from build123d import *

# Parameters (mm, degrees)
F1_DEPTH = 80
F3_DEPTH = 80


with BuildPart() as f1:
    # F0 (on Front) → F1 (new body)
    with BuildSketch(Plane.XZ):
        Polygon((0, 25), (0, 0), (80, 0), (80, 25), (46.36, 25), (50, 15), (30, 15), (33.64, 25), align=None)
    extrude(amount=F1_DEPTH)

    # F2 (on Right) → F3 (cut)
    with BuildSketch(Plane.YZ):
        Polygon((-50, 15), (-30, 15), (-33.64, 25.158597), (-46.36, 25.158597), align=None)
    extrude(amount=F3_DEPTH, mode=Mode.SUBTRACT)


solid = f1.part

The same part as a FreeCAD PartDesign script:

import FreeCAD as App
import Part
import Sketcher
from FreeCAD import Vector
Q = App.Units.Quantity

doc = App.newDocument("Part")
body = doc.addObject("PartDesign::Body", "Body")

sketch1 = body.newObject("Sketcher::SketchObject", "Sketch")
sketch1.AttachmentSupport = (doc.getObject("XZ_Plane"), [""])
sketch1.MapMode = "FlatFace"
sketch1.addGeometry(Part.LineSegment(Vector(0, 25, 0), Vector(0, 0, 0)), False)
sketch1.addGeometry(Part.LineSegment(Vector(0, 0, 0), Vector(80, 0, 0)), False)
sketch1.addGeometry(Part.LineSegment(Vector(80, 0, 0), Vector(80, 25, 0)), False)
sketch1.addGeometry(Part.LineSegment(Vector(80, 25, 0), Vector(46, 25, 0)), False)
sketch1.addGeometry(Part.LineSegment(Vector(46, 25, 0), Vector(50, 15, 0)), False)
sketch1.addGeometry(Part.LineSegment(Vector(50, 15, 0), Vector(30, 15, 0)), False)
sketch1.addGeometry(Part.LineSegment(Vector(30, 15, 0), Vector(34, 25, 0)), False)
sketch1.addGeometry(Part.LineSegment(Vector(34, 25, 0), Vector(0, 25, 0)), False)
sketch1.addConstraint(Sketcher.Constraint("Coincident", 0, 2, 1, 1))
sketch1.addConstraint(Sketcher.Constraint("Coincident", 1, 2, 2, 1))
sketch1.addConstraint(Sketcher.Constraint("Coincident", 2, 2, 3, 1))
sketch1.addConstraint(Sketcher.Constraint("Coincident", 3, 2, 4, 1))
sketch1.addConstraint(Sketcher.Constraint("Coincident", 4, 2, 5, 1))
sketch1.addConstraint(Sketcher.Constraint("Coincident", 5, 2, 6, 1))
sketch1.addConstraint(Sketcher.Constraint("Coincident", 6, 2, 7, 1))
sketch1.addConstraint(Sketcher.Constraint("Coincident", 7, 2, 0, 1))
sketch1.addConstraint(Sketcher.Constraint("Vertical", 0))
sketch1.addConstraint(Sketcher.Constraint("Horizontal", 1))
sketch1.addConstraint(Sketcher.Constraint("Vertical", 2))
sketch1.addConstraint(Sketcher.Constraint("Horizontal", 3))
sketch1.addConstraint(Sketcher.Constraint("Horizontal", 5))
sketch1.addConstraint(Sketcher.Constraint("Horizontal", 7))
sketch1.addConstraint(Sketcher.Constraint("Coincident", 0, 2, -1, 1))
sketch1.addConstraint(Sketcher.Constraint("Horizontal", 3, 2, 6, 2))
sketch1.addConstraint(Sketcher.Constraint("Equal", 3, 7))
sketch1.addConstraint(Sketcher.Constraint("Equal", 4, 6))
sketch1.addConstraint(Sketcher.Constraint("DistanceX", 1, 1, 1, 2, Q("80 mm")))
sketch1.addConstraint(Sketcher.Constraint("DistanceX", 5, 2, 5, 1, Q("20 mm")))
sketch1.addConstraint(Sketcher.Constraint("DistanceY", 0, 2, 0, 1, Q("25 mm")))
sketch1.addConstraint(Sketcher.Constraint("DistanceY", -1, 1, 4, 2, Q("15 mm")))
sketch1.addConstraint(Sketcher.Constraint("DistanceX", 3, 2, 3, 1, Q("33.64 mm")))
pad1 = body.newObject("PartDesign::Pad", "Pad")
pad1.Profile = sketch1
pad1.Length = 80

sketch2 = body.newObject("Sketcher::SketchObject", "Sketch001")
sketch2.AttachmentSupport = (doc.getObject("YZ_Plane"), [""])
sketch2.MapMode = "FlatFace"
sketch2.addGeometry(Part.LineSegment(Vector(-50, 15, 0), Vector(-30, 15, 0)), False)
sketch2.addGeometry(Part.LineSegment(Vector(-30, 15, 0), Vector(-34, 25, 0)), False)
sketch2.addGeometry(Part.LineSegment(Vector(-34, 25, 0), Vector(-46, 25, 0)), False)
sketch2.addGeometry(Part.LineSegment(Vector(-46, 25, 0), Vector(-50, 15, 0)), False)
sketch2.addConstraint(Sketcher.Constraint("Coincident", 0, 2, 1, 1))
sketch2.addConstraint(Sketcher.Constraint("Coincident", 1, 2, 2, 1))
sketch2.addConstraint(Sketcher.Constraint("Coincident", 2, 2, 3, 1))
sketch2.addConstraint(Sketcher.Constraint("Coincident", 3, 2, 0, 1))
sketch2.addConstraint(Sketcher.Constraint("Horizontal", 0))
sketch2.addConstraint(Sketcher.Constraint("Horizontal", 2))
sketch2.addConstraint(Sketcher.Constraint("Equal", 1, 3))
sketch2.addConstraint(Sketcher.Constraint("DistanceX", 0, 1, 0, 2, Q("20 mm")))
sketch2.addConstraint(Sketcher.Constraint("DistanceX", 0, 2, -1, 1, Q("30 mm")))
sketch2.addConstraint(Sketcher.Constraint("DistanceY", -1, 1, 0, 2, Q("15 mm")))
sketch2.addConstraint(Sketcher.Constraint("DistanceX", 2, 2, 2, 1, Q("12.72 mm")))
sketch2.addConstraint(Sketcher.Constraint("Distance", 1, Q("10.791047 mm")))
pocket1 = body.newObject("PartDesign::Pocket", "Pocket")
pocket1.Profile = sketch2
pocket1.Length = 80
pocket1.Reversed = True

doc.recompute()
